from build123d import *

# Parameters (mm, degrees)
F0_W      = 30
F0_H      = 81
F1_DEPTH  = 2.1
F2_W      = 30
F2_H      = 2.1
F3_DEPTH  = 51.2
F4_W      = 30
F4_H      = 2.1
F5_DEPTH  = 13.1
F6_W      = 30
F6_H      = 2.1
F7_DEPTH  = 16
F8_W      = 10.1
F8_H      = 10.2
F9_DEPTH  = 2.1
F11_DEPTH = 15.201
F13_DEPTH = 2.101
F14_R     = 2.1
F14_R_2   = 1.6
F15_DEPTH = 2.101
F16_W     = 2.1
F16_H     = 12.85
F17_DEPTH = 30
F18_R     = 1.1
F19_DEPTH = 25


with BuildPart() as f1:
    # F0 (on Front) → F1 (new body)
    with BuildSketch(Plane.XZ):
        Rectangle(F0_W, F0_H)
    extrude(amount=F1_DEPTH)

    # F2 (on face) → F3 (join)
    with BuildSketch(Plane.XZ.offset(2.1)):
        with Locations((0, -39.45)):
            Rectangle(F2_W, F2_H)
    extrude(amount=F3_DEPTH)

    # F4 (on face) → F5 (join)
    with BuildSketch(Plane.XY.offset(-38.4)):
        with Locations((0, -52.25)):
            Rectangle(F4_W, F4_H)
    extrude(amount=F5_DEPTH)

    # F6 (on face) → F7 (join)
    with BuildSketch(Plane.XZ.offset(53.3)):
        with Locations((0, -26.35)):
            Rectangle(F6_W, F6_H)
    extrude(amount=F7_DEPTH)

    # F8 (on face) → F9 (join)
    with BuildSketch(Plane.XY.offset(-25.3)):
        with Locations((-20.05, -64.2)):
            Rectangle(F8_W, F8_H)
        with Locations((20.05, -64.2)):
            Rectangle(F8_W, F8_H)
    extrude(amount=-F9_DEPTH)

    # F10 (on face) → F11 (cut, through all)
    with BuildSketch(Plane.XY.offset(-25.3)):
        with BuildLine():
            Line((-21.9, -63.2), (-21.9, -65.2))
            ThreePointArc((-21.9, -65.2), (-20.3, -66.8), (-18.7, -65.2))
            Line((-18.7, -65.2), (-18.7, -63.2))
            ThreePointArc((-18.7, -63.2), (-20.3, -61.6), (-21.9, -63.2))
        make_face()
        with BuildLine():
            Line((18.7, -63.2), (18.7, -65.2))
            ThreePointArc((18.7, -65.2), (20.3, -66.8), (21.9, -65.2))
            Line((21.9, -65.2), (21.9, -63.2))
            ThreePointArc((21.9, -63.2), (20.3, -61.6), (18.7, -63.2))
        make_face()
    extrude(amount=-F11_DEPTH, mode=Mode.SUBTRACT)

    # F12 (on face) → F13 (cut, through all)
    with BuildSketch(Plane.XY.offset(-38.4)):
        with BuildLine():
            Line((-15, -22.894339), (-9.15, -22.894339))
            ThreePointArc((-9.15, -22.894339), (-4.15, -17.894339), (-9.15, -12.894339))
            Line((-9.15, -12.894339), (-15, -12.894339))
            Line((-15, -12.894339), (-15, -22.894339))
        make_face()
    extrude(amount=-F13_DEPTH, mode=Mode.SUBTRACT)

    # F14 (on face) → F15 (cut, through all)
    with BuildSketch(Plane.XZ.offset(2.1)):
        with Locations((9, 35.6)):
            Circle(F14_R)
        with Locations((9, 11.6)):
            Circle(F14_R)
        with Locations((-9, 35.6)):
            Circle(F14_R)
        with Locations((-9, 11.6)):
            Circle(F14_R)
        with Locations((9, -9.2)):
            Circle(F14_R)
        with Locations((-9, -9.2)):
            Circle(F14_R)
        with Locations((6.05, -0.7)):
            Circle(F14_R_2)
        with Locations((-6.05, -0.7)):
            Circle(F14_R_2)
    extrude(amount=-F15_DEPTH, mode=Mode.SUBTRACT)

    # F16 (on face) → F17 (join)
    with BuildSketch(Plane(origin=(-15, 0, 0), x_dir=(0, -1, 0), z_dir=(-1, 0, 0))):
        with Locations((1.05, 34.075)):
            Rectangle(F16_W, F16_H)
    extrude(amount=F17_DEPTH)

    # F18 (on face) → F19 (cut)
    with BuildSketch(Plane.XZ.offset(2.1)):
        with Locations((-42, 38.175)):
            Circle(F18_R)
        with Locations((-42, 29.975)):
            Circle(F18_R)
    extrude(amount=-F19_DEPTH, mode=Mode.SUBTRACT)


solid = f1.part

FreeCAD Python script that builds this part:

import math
import FreeCAD as App
import Part
import Sketcher

doc = App.newDocument("Part")
body = doc.addObject("PartDesign::Body", "Body")

# Sketch on XZ plane
sketch1 = body.newObject("Sketcher::SketchObject", "Sketch")
sketch1.AttachmentSupport = (doc.getObject("XZ_Plane"), [""])
sketch1.MapMode = "FlatFace"
sketch1.addGeometry([
    Part.LineSegment(App.Vector(-15, 40.5, 0), App.Vector(-15, -40.5, 0)),
    Part.LineSegment(App.Vector(-15, -40.5, 0), App.Vector(15, -40.5, 0)),
    Part.LineSegment(App.Vector(15, -40.5, 0), App.Vector(15, 40.5, 0)),
    Part.LineSegment(App.Vector(15, 40.5, 0), App.Vector(-15, 40.5, 0)),
], False)
sketch1.addConstraint([
    Sketcher.Constraint("Coincident", 0, 2, 1, 1),
    Sketcher.Constraint("Coincident", 1, 2, 2, 1),
    Sketcher.Constraint("Coincident", 2, 2, 3, 1),
    Sketcher.Constraint("Coincident", 3, 2, 0, 1),
    Sketcher.Constraint("Vertical", 0),
    Sketcher.Constraint("Horizontal", 1),
    Sketcher.Constraint("Vertical", 2),
    Sketcher.Constraint("Horizontal", 3),
    Sketcher.Constraint("Symmetric", 0, 2, 2, 2, -1, 1),
    Sketcher.Constraint("DistanceX", 1, 1, 1, 2, 30.0),
    Sketcher.Constraint("DistanceY", 0, 2, 0, 1, 81.0),
])
pad1 = body.newObject("PartDesign::Pad", "Pad")
pad1.Profile = sketch1
pad1.Length = 2.1

# Sketch on XZ plane
sketch2 = body.newObject("Sketcher::SketchObject", "Sketch001")
sketch2.AttachmentSupport = (doc.getObject("XZ_Plane"), [""])
sketch2.MapMode = "FlatFace"
sketch2.AttachmentOffset = App.Placement(App.Vector(0, 0, 2.1), App.Rotation())
sketch2.addGeometry([
    Part.LineSegment(App.Vector(-15, -38.4, 0), App.Vector(-15, -40.5, 0)),
    Part.LineSegment(App.Vector(-15, -40.5, 0), App.Vector(15, -40.5, 0)),
    Part.LineSegment(App.Vector(15, -40.5, 0), App.Vector(15, -38.4, 0)),
    Part.LineSegment(App.Vector(15, -38.4, 0), App.Vector(-15, -38.4, 0)),
], False)
sketch2.addConstraint([
    Sketcher.Constraint("Coincident", 0, 2, 1, 1),
    Sketcher.Constraint("Coincident", 1, 2, 2, 1),
    Sketcher.Constraint("Coincident", 2, 2, 3, 1),
    Sketcher.Constraint("Coincident", 3, 2, 0, 1),
    Sketcher.Constraint("Vertical", 0),
    Sketcher.Constraint("Horizontal", 1),
    Sketcher.Constraint("Vertical", 2),
    Sketcher.Constraint("Horizontal", 3),
    Sketcher.Constraint("DistanceX", 1, 1, 1, 2, 30.0),
    Sketcher.Constraint("DistanceY", 0, 2, 0, 1, 2.1),
    Sketcher.Constraint("DistanceX", 0, 2, -1, 1, 15.0),
    Sketcher.Constraint("DistanceY", 0, 2, -1, 1, 40.5),
])
pad2 = body.newObject("PartDesign::Pad", "Pad001")
pad2.Profile = sketch2
pad2.Length = 51.2

# Sketch on XY plane
sketch3 = body.newObject("Sketcher::SketchObject", "Sketch002")
sketch3.AttachmentSupport = (doc.getObject("XY_Plane"), [""])
sketch3.MapMode = "FlatFace"
sketch3.AttachmentOffset = App.Placement(App.Vector(0, 0, -38.4), App.Rotation())
sketch3.addGeometry([
    Part.LineSegment(App.Vector(-15, -51.2, 0), App.Vector(-15, -53.3, 0)),
    Part.LineSegment(App.Vector(-15, -53.3, 0), App.Vector(15, -53.3, 0)),
    Part.LineSegment(App.Vector(15, -53.3, 0), App.Vector(15, -51.2, 0)),
    Part.LineSegment(App.Vector(15, -51.2, 0), App.Vector(-15, -51.2, 0)),
], False)
sketch3.addConstraint([
    Sketcher.Constraint("Coincident", 0, 2, 1, 1),
    Sketcher.Constraint("Coincident", 1, 2, 2, 1),
    Sketcher.Constraint("Coincident", 2, 2, 3, 1),
    Sketcher.Constraint("Coincident", 3, 2, 0, 1),
    Sketcher.Constraint("Vertical", 0),
    Sketcher.Constraint("Horizontal", 1),
    Sketcher.Constraint("Vertical", 2),
    Sketcher.Constraint("Horizontal", 3),
    Sketcher.Constraint("DistanceX", 1, 1, 1, 2, 30.0),
    Sketcher.Constraint("DistanceY", 0, 2, 0, 1, 2.1),
    Sketcher.Constraint("DistanceX", 0, 2, -1, 1, 15.0),
    Sketcher.Constraint("DistanceY", 0, 2, -1, 1, 53.3),
])
pad3 = body.newObject("PartDesign::Pad", "Pad002")
pad3.Profile = sketch3
pad3.Length = 13.1

# Sketch on XZ plane
sketch4 = body.newObject("Sketcher::SketchObject", "Sketch003")
sketch4.AttachmentSupport = (doc.getObject("XZ_Plane"), [""])
sketch4.MapMode = "FlatFace"
sketch4.AttachmentOffset = App.Placement(App.Vector(0, 0, 53.3), App.Rotation())
sketch4.addGeometry([
    Part.LineSegment(App.Vector(-15, -25.3, 0), App.Vector(-15, -27.4, 0)),
    Part.LineSegment(App.Vector(-15, -27.4, 0), App.Vector(15, -27.4, 0)),
    Part.LineSegment(App.Vector(15, -27.4, 0), App.Vector(15, -25.3, 0)),
    Part.LineSegment(App.Vector(15, -25.3, 0), App.Vector(-15, -25.3, 0)),
], False)
sketch4.addConstraint([
    Sketcher.Constraint("Coincident", 0, 2, 1, 1),
    Sketcher.Constraint("Coincident", 1, 2, 2, 1),
    Sketcher.Constraint("Coincident", 2, 2, 3, 1),
    Sketcher.Constraint("Coincident", 3, 2, 0, 1),
    Sketcher.Constraint("Vertical", 0),
    Sketcher.Constraint("Horizontal", 1),
    Sketcher.Constraint("Vertical", 2),
    Sketcher.Constraint("Horizontal", 3),
    Sketcher.Constraint("DistanceX", 1, 1, 1, 2, 30.0),
    Sketcher.Constraint("DistanceY", 0, 2, 0, 1, 2.1),
    Sketcher.Constraint("DistanceX", 0, 2, -1, 1, 15.0),
    Sketcher.Constraint("DistanceY", 0, 2, -1, 1, 27.4),
])
pad4 = body.newObject("PartDesign::Pad", "Pad003")
pad4.Profile = sketch4
pad4.Length = 16

# Sketch on XY plane
sketch5 = body.newObject("Sketcher::SketchObject", "Sketch004")
sketch5.AttachmentSupport = (doc.getObject("XY_Plane"), [""])
sketch5.MapMode = "FlatFace"
sketch5.AttachmentOffset = App.Placement(App.Vector(0, 0, -25.3), App.Rotation())
sketch5.addGeometry([
    Part.LineSegment(App.Vector(-25.1, -59.1, 0), App.Vector(-25.1, -69.3, 0)),  # 0
    Part.LineSegment(App.Vector(-25.1, -69.3, 0), App.Vector(-15, -69.3, 0)),  # 1
    Part.LineSegment(App.Vector(-15, -69.3, 0), App.Vector(-15, -59.1, 0)),  # 2
    Part.LineSegment(App.Vector(-15, -59.1, 0), App.Vector(-25.1, -59.1, 0)),  # 3
    Part.LineSegment(App.Vector(15, -59.1, 0), App.Vector(15, -69.3, 0)),  # 4
    Part.LineSegment(App.Vector(15, -69.3, 0), App.Vector(25.1, -69.3, 0)),  # 5
    Part.LineSegment(App.Vector(25.1, -69.3, 0), App.Vector(25.1, -59.1, 0)),  # 6
    Part.LineSegment(App.Vector(25.1, -59.1, 0), App.Vector(15, -59.1, 0)),  # 7
], False)
sketch5.addConstraint([
    Sketcher.Constraint("Coincident", 0, 2, 1, 1),
    Sketcher.Constraint("Coincident", 1, 2, 2, 1),
    Sketcher.Constraint("Coincident", 2, 2, 3, 1),
    Sketcher.Constraint("Coincident", 3, 2, 0, 1),
    Sketcher.Constraint("Coincident", 4, 2, 5, 1),
    Sketcher.Constraint("Coincident", 5, 2, 6, 1),
    Sketcher.Constraint("Coincident", 6, 2, 7, 1),
    Sketcher.Constraint("Coincident", 7, 2, 4, 1),
    Sketcher.Constraint("Vertical", 0),
    Sketcher.Constraint("Horizontal", 1),
    Sketcher.Constraint("Vertical", 2),
    Sketcher.Constraint("Horizontal", 3),
    Sketcher.Constraint("Vertical", 4),
    Sketcher.Constraint("Horizontal", 5),
    Sketcher.Constraint("Vertical", 6),
    Sketcher.Constraint("Horizontal", 7),
    Sketcher.Constraint("Symmetric", 1, 2, 4, 2, -2),
    Sketcher.Constraint("Symmetric", 3, 2, 6, 2, -2),
    Sketcher.Constraint("DistanceX", 1, 1, 1, 2, 10.1),
    Sketcher.Constraint("DistanceY", 0, 2, 0, 1, 10.2),
    Sketcher.Constraint("DistanceX", 1, 2, -1, 1, 15.0),
    Sketcher.Constraint("DistanceY", 0, 2, -1, 1, 69.3),
])
pad5 = body.newObject("PartDesign::Pad", "Pad004")
pad5.Profile = sketch5
pad5.Length = 2.1
pad5.Reversed = True

# Sketch on XY plane
sketch6 = body.newObject("Sketcher::SketchObject", "Sketch005")
sketch6.AttachmentSupport = (doc.getObject("XY_Plane"), [""])
sketch6.MapMode = "FlatFace"
sketch6.AttachmentOffset = App.Placement(App.Vector(0, 0, -25.3), App.Rotation())
sketch6.addGeometry([
    Part.LineSegment(App.Vector(-21.9, -63.2, 0), App.Vector(-21.9, -65.2, 0)),  # 0
    Part.ArcOfCircle(Part.Circle(App.Vector(-20.3, -65.2, 0), App.Vector(0, 0, 1), 1.6), math.radians(180), math.radians(360)),  # 1
    Part.LineSegment(App.Vector(-18.7, -65.2, 0), App.Vector(-18.7, -63.2, 0)),  # 2
    Part.ArcOfCircle(Part.Circle(App.Vector(-20.3, -63.2, 0), App.Vector(0, 0, 1), 1.6), math.radians(0), math.radians(180)),  # 3
    Part.LineSegment(App.Vector(18.7, -63.2, 0), App.Vector(18.7, -65.2, 0)),  # 4
    Part.ArcOfCircle(Part.Circle(App.Vector(20.3, -65.2, 0), App.Vector(0, 0, 1), 1.6), math.radians(180), math.radians(360)),  # 5
    Part.LineSegment(App.Vector(21.9, -65.2, 0), App.Vector(21.9, -63.2, 0)),  # 6
    Part.ArcOfCircle(Part.Circle(App.Vector(20.3, -63.2, 0), App.Vector(0, 0, 1), 1.6), math.radians(0), math.radians(180)),  # 7
], False)
sketch6.addConstraint([
    Sketcher.Constraint("Tangent", 0, 2, 1, 1),
    Sketcher.Constraint("Tangent", 1, 2, 2, 1),
    Sketcher.Constraint("Tangent", 2, 2, 3, 1),
    Sketcher.Constraint("Tangent", 3, 2, 0, 1),
    Sketcher.Constraint("Tangent", 4, 2, 5, 1),
    Sketcher.Constraint("Tangent", 5, 2, 6, 1),
    Sketcher.Constraint("Tangent", 6, 2, 7, 1),
    Sketcher.Constraint("Tangent", 7, 2, 4, 1),
    Sketcher.Constraint("Vertical", 0),
    Sketcher.Constraint("Vertical", 2),
    Sketcher.Constraint("Vertical", 4),
    Sketcher.Constraint("Vertical", 6),
    Sketcher.Constraint("Equal", 3, 5),
    Sketcher.Constraint("Symmetric", 1, 3, 5, 3, -2),
    Sketcher.Constraint("Horizontal", 3, 3, 7, 3),
    Sketcher.Constraint("Radius", 1, 1.6),
    Sketcher.Constraint("DistanceY", 0, 2, 0, 1, 2.0),
    Sketcher.Constraint("DistanceX", 1, 2, 5, 3, 39.0),
    Sketcher.Constraint("DistanceY", 1, 3, -1, 1, 65.2),
])
pocket1 = body.newObject("PartDesign::Pocket", "Pocket")
pocket1.Profile = sketch6
pocket1.Type = "ThroughAll"

# Sketch on XY plane
sketch7 = body.newObject("Sketcher::SketchObject", "Sketch006")
sketch7.AttachmentSupport = (doc.getObject("XY_Plane"), [""])
sketch7.MapMode = "FlatFace"
sketch7.AttachmentOffset = App.Placement(App.Vector(0, 0, -38.4), App.Rotation())
sketch7.addGeometry([
    Part.LineSegment(App.Vector(-15, -22.894339, 0), App.Vector(-9.15, -22.894339, 0)),
    Part.ArcOfCircle(Part.Circle(App.Vector(-9.15, -17.894339, 0), App.Vector(0, 0, 1), 5), math.radians(-90), math.radians(90)),
    Part.LineSegment(App.Vector(-9.15, -12.894339, 0), App.Vector(-15, -12.894339, 0)),
    Part.LineSegment(App.Vector(-15, -12.894339, 0), App.Vector(-15, -22.894339, 0)),
], False)
sketch7.addConstraint([
    Sketcher.Constraint("Tangent", 0, 2, 1, 1),
    Sketcher.Constraint("Tangent", 1, 2, 2, 1),
    Sketcher.Constraint("Coincident", 2, 2, 3, 1),
    Sketcher.Constraint("Coincident", 3, 2, 0, 1),
    Sketcher.Constraint("Horizontal", 0),
    Sketcher.Constraint("Horizontal", 2),
    Sketcher.Constraint("Vertical", 3),
    Sketcher.Constraint("Radius", 1, 5.0),
    Sketcher.Constraint("DistanceX", 2, 2, -1, 1, 15.0),
    Sketcher.Constraint("DistanceX", 0, 1, 0, 2, 5.85),
    Sketcher.Constraint("DistanceY", 1, 3, -1, 1, 17.894339),
])
pocket2 = body.newObject("PartDesign::Pocket", "Pocket001")
pocket2.Profile = sketch7
pocket2.Type = "ThroughAll"

# Sketch on XZ plane
sketch8 = body.newObject("Sketcher::SketchObject", "Sketch007")
sketch8.AttachmentSupport = (doc.getObject("XZ_Plane"), [""])
sketch8.MapMode = "FlatFace"
sketch8.AttachmentOffset = App.Placement(App.Vector(0, 0, 2.1), App.Rotation())
sketch8.addGeometry([
    Part.Circle(App.Vector(9, 35.6, 0), App.Vector(0, 0, 1), 2.1),  # 0
    Part.Circle(App.Vector(9, 11.6, 0), App.Vector(0, 0, 1), 2.1),  # 1
    Part.Circle(App.Vector(-9, 35.6, 0), App.Vector(0, 0, 1), 2.1),  # 2
    Part.Circle(App.Vector(-9, 11.6, 0), App.Vector(0, 0, 1), 2.1),  # 3
    Part.Circle(App.Vector(9, -9.2, 0), App.Vector(0, 0, 1), 2.1),  # 4
    Part.Circle(App.Vector(-9, -9.2, 0), App.Vector(0, 0, 1), 2.1),  # 5
    Part.Circle(App.Vector(6.05, -0.7, 0), App.Vector(0, 0, 1), 1.6),  # 6
    Part.Circle(App.Vector(-6.05, -0.7, 0), App.Vector(0, 0, 1), 1.6),  # 7
], False)
sketch8.addConstraint([
    Sketcher.Constraint("Equal", 0, 1),
    Sketcher.Constraint("Equal", 1, 2),
    Sketcher.Constraint("Equal", 2, 3),
    Sketcher.Constraint("Equal", 3, 4),
    Sketcher.Constraint("Equal", 4, 5),
    Sketcher.Constraint("Equal", 6, 7),
    Sketcher.Constraint("Symmetric", 0, 3, 2, 3, -2),
    Sketcher.Constraint("Symmetric", 1, 3, 3, 3, -2),
    Sketcher.Constraint("Symmetric", 4, 3, 5, 3, -2),
    Sketcher.Constraint("Symmetric", 6, 3, 7, 3, -2),
    Sketcher.Constraint("Vertical", 0, 3, 1, 3),
    Sketcher.Constraint("Vertical", 1, 3, 4, 3),
    Sketcher.Constraint("Diameter", 0, 4.2),
    Sketcher.Constraint("Diameter", 6, 3.2),
    Sketcher.Constraint("DistanceX", -1, 1, 0, 3, 9.0),
    Sketcher.Constraint("DistanceY", 1, 3, 0, 3, 24.0),
    Sketcher.Constraint("DistanceY", -1, 1, 0, 3, 35.6),
    Sketcher.Constraint("DistanceY", 4, 3, -1, 1, 9.2),
    Sketcher.Constraint("DistanceY", 6, 3, -1, 1, 0.7),
    Sketcher.Constraint("DistanceX", 7, 3, 6, 3, 12.1),
])
pocket3 = body.newObject("PartDesign::Pocket", "Pocket002")
pocket3.Profile = sketch8
pocket3.Type = "ThroughAll"

# Sketch on YZ plane
sketch9 = body.newObject("Sketcher::SketchObject", "Sketch008")
sketch9.AttachmentSupport = (doc.getObject("YZ_Plane"), [""])
sketch9.MapMode = "FlatFace"
sketch9.AttachmentOffset = App.Placement(App.Vector(0, 0, -15), App.Rotation())
sketch9.addGeometry([
    Part.LineSegment(App.Vector(0, 40.5, 0), App.Vector(0, 27.65, 0)),
    Part.LineSegment(App.Vector(0, 27.65, 0), App.Vector(-2.1, 27.65, 0)),
    Part.LineSegment(App.Vector(-2.1, 27.65, 0), App.Vector(-2.1, 40.5, 0)),
    Part.LineSegment(App.Vector(-2.1, 40.5, 0), App.Vector(0, 40.5, 0)),
], False)
sketch9.addConstraint([
    Sketcher.Constraint("Coincident", 0, 2, 1, 1),
    Sketcher.Constraint("Coincident", 1, 2, 2, 1),
    Sketcher.Constraint("Coincident", 2, 2, 3, 1),
    Sketcher.Constraint("Coincident", 3, 2, 0, 1),
    Sketcher.Constraint("Vertical", 0),
    Sketcher.Constraint("Horizontal", 1),
    Sketcher.Constraint("Vertical", 2),
    Sketcher.Constraint("Horizontal", 3),
    Sketcher.Constraint("PointOnObject", 0, 2, -2),
    Sketcher.Constraint("DistanceX", 1, 2, 1, 1, 2.1),
    Sketcher.Constraint("DistanceY", 0, 2, 0, 1, 12.85),
    Sketcher.Constraint("DistanceY", -1, 1, 2, 2, 40.5),
])
pad6 = body.newObject("PartDesign::Pad", "Pad005")
pad6.Profile = sketch9
pad6.Length = 30
pad6.Reversed = True

# Sketch on XZ plane
sketch10 = body.newObject("Sketcher::SketchObject", "Sketch009")
sketch10.AttachmentSupport = (doc.getObject("XZ_Plane"), [""])
sketch10.MapMode = "FlatFace"
sketch10.AttachmentOffset = App.Placement(App.Vector(0, 0, 2.1), App.Rotation())
sketch10.addGeometry([
    Part.Circle(App.Vector(-42, 38.175, 0), App.Vector(0, 0, 1), 1.1),
    Part.Circle(App.Vector(-42, 29.975, 0), App.Vector(0, 0, 1), 1.1),
], False)
sketch10.addConstraint([
    Sketcher.Constraint("Equal", 0, 1),
    Sketcher.Constraint("Vertical", 0, 3, 1, 3),
    Sketcher.Constraint("Diameter", 0, 2.2),
    Sketcher.Constraint("DistanceX", 0, 3, -1, 1, 42.0),
    Sketcher.Constraint("DistanceY", 1, 3, 0, 3, 8.2),
    Sketcher.Constraint("DistanceY", -1, 1, 0, 3, 38.175),
])
pocket4 = body.newObject("PartDesign::Pocket", "Pocket003")
pocket4.Profile = sketch10
pocket4.Length = 25

doc.recompute()
